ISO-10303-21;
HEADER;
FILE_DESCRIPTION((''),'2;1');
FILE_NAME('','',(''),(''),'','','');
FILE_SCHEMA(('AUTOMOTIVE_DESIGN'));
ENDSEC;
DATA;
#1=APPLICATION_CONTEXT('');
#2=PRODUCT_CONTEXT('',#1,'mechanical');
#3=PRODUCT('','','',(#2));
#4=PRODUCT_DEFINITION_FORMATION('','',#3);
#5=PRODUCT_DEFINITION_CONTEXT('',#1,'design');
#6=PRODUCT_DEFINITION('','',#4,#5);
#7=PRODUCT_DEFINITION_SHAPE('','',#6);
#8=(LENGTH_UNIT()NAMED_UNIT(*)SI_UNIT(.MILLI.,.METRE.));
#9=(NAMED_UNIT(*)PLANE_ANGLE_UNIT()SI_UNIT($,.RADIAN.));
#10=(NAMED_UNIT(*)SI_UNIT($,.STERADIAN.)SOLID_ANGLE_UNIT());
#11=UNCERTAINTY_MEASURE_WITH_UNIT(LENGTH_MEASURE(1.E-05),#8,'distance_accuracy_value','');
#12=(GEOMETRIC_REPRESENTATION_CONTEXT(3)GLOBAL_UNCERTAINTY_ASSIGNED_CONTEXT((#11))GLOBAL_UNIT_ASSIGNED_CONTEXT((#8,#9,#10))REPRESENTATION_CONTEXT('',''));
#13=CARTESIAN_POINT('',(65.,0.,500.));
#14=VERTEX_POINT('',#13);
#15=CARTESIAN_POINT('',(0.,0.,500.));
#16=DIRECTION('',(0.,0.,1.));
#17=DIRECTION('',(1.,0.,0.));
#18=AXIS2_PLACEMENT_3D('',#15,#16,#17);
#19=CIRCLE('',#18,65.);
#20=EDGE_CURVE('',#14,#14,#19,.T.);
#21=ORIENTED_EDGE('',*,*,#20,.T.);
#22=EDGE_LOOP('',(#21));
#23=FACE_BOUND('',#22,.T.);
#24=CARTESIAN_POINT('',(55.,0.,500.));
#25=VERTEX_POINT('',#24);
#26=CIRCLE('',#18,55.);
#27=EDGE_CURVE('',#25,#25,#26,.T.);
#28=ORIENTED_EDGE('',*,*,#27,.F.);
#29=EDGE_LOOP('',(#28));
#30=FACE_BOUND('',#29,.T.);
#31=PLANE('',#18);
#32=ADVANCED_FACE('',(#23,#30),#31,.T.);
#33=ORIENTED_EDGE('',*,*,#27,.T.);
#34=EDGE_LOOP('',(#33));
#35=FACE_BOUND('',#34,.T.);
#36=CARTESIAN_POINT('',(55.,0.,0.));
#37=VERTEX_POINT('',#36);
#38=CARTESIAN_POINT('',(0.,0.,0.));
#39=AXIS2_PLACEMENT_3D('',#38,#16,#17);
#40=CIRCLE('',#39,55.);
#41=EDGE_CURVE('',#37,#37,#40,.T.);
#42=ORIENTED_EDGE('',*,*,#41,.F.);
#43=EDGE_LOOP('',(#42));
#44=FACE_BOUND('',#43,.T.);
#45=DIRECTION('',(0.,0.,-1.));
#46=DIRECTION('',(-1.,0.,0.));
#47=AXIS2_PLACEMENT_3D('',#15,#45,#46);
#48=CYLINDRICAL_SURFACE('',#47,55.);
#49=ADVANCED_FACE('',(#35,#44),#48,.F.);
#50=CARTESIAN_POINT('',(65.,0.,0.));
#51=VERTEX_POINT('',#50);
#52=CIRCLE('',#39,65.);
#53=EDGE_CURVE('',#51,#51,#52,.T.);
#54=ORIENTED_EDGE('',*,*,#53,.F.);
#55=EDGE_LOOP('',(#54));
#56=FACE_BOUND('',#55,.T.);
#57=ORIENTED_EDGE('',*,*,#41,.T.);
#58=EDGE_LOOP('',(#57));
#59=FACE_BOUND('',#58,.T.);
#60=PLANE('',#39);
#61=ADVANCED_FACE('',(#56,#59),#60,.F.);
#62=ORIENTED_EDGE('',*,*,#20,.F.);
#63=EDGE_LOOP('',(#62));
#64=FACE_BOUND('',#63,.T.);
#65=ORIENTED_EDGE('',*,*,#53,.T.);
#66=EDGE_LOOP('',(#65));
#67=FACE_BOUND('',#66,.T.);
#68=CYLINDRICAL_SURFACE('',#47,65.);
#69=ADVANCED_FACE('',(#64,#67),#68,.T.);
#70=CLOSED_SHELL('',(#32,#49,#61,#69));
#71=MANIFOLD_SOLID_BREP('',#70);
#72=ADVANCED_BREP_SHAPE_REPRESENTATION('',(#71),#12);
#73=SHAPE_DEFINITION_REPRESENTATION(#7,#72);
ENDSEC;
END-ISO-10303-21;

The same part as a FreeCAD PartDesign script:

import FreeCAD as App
import Part
import Sketcher
from FreeCAD import Vector

doc = App.newDocument("Part")
body = doc.addObject("PartDesign::Body", "Body")

# Sketch on XY plane
sketch1 = body.newObject("Sketcher::SketchObject", "Sketch")
sketch1.AttachmentSupport = (doc.getObject("XY_Plane"), [""])
sketch1.MapMode = "FlatFace"
sketch1.addGeometry([
    Part.Circle(Vector(0, 0, 0), Vector(0, 0, 1), 65),
    Part.Circle(Vector(0, 0, 0), Vector(0, 0, 1), 55),
], False)
sketch1.addConstraint([
    Sketcher.Constraint("Coincident", 0, 3, -1, 1),
    Sketcher.Constraint("Coincident", 1, 3, -1, 1),
    Sketcher.Constraint("Diameter", 0, 130.0),
    Sketcher.Constraint("Diameter", 1, 110.0),
])
pad1 = body.newObject("PartDesign::Pad", "Pad")
pad1.Profile = sketch1
pad1.Length = 500

doc.recompute()
